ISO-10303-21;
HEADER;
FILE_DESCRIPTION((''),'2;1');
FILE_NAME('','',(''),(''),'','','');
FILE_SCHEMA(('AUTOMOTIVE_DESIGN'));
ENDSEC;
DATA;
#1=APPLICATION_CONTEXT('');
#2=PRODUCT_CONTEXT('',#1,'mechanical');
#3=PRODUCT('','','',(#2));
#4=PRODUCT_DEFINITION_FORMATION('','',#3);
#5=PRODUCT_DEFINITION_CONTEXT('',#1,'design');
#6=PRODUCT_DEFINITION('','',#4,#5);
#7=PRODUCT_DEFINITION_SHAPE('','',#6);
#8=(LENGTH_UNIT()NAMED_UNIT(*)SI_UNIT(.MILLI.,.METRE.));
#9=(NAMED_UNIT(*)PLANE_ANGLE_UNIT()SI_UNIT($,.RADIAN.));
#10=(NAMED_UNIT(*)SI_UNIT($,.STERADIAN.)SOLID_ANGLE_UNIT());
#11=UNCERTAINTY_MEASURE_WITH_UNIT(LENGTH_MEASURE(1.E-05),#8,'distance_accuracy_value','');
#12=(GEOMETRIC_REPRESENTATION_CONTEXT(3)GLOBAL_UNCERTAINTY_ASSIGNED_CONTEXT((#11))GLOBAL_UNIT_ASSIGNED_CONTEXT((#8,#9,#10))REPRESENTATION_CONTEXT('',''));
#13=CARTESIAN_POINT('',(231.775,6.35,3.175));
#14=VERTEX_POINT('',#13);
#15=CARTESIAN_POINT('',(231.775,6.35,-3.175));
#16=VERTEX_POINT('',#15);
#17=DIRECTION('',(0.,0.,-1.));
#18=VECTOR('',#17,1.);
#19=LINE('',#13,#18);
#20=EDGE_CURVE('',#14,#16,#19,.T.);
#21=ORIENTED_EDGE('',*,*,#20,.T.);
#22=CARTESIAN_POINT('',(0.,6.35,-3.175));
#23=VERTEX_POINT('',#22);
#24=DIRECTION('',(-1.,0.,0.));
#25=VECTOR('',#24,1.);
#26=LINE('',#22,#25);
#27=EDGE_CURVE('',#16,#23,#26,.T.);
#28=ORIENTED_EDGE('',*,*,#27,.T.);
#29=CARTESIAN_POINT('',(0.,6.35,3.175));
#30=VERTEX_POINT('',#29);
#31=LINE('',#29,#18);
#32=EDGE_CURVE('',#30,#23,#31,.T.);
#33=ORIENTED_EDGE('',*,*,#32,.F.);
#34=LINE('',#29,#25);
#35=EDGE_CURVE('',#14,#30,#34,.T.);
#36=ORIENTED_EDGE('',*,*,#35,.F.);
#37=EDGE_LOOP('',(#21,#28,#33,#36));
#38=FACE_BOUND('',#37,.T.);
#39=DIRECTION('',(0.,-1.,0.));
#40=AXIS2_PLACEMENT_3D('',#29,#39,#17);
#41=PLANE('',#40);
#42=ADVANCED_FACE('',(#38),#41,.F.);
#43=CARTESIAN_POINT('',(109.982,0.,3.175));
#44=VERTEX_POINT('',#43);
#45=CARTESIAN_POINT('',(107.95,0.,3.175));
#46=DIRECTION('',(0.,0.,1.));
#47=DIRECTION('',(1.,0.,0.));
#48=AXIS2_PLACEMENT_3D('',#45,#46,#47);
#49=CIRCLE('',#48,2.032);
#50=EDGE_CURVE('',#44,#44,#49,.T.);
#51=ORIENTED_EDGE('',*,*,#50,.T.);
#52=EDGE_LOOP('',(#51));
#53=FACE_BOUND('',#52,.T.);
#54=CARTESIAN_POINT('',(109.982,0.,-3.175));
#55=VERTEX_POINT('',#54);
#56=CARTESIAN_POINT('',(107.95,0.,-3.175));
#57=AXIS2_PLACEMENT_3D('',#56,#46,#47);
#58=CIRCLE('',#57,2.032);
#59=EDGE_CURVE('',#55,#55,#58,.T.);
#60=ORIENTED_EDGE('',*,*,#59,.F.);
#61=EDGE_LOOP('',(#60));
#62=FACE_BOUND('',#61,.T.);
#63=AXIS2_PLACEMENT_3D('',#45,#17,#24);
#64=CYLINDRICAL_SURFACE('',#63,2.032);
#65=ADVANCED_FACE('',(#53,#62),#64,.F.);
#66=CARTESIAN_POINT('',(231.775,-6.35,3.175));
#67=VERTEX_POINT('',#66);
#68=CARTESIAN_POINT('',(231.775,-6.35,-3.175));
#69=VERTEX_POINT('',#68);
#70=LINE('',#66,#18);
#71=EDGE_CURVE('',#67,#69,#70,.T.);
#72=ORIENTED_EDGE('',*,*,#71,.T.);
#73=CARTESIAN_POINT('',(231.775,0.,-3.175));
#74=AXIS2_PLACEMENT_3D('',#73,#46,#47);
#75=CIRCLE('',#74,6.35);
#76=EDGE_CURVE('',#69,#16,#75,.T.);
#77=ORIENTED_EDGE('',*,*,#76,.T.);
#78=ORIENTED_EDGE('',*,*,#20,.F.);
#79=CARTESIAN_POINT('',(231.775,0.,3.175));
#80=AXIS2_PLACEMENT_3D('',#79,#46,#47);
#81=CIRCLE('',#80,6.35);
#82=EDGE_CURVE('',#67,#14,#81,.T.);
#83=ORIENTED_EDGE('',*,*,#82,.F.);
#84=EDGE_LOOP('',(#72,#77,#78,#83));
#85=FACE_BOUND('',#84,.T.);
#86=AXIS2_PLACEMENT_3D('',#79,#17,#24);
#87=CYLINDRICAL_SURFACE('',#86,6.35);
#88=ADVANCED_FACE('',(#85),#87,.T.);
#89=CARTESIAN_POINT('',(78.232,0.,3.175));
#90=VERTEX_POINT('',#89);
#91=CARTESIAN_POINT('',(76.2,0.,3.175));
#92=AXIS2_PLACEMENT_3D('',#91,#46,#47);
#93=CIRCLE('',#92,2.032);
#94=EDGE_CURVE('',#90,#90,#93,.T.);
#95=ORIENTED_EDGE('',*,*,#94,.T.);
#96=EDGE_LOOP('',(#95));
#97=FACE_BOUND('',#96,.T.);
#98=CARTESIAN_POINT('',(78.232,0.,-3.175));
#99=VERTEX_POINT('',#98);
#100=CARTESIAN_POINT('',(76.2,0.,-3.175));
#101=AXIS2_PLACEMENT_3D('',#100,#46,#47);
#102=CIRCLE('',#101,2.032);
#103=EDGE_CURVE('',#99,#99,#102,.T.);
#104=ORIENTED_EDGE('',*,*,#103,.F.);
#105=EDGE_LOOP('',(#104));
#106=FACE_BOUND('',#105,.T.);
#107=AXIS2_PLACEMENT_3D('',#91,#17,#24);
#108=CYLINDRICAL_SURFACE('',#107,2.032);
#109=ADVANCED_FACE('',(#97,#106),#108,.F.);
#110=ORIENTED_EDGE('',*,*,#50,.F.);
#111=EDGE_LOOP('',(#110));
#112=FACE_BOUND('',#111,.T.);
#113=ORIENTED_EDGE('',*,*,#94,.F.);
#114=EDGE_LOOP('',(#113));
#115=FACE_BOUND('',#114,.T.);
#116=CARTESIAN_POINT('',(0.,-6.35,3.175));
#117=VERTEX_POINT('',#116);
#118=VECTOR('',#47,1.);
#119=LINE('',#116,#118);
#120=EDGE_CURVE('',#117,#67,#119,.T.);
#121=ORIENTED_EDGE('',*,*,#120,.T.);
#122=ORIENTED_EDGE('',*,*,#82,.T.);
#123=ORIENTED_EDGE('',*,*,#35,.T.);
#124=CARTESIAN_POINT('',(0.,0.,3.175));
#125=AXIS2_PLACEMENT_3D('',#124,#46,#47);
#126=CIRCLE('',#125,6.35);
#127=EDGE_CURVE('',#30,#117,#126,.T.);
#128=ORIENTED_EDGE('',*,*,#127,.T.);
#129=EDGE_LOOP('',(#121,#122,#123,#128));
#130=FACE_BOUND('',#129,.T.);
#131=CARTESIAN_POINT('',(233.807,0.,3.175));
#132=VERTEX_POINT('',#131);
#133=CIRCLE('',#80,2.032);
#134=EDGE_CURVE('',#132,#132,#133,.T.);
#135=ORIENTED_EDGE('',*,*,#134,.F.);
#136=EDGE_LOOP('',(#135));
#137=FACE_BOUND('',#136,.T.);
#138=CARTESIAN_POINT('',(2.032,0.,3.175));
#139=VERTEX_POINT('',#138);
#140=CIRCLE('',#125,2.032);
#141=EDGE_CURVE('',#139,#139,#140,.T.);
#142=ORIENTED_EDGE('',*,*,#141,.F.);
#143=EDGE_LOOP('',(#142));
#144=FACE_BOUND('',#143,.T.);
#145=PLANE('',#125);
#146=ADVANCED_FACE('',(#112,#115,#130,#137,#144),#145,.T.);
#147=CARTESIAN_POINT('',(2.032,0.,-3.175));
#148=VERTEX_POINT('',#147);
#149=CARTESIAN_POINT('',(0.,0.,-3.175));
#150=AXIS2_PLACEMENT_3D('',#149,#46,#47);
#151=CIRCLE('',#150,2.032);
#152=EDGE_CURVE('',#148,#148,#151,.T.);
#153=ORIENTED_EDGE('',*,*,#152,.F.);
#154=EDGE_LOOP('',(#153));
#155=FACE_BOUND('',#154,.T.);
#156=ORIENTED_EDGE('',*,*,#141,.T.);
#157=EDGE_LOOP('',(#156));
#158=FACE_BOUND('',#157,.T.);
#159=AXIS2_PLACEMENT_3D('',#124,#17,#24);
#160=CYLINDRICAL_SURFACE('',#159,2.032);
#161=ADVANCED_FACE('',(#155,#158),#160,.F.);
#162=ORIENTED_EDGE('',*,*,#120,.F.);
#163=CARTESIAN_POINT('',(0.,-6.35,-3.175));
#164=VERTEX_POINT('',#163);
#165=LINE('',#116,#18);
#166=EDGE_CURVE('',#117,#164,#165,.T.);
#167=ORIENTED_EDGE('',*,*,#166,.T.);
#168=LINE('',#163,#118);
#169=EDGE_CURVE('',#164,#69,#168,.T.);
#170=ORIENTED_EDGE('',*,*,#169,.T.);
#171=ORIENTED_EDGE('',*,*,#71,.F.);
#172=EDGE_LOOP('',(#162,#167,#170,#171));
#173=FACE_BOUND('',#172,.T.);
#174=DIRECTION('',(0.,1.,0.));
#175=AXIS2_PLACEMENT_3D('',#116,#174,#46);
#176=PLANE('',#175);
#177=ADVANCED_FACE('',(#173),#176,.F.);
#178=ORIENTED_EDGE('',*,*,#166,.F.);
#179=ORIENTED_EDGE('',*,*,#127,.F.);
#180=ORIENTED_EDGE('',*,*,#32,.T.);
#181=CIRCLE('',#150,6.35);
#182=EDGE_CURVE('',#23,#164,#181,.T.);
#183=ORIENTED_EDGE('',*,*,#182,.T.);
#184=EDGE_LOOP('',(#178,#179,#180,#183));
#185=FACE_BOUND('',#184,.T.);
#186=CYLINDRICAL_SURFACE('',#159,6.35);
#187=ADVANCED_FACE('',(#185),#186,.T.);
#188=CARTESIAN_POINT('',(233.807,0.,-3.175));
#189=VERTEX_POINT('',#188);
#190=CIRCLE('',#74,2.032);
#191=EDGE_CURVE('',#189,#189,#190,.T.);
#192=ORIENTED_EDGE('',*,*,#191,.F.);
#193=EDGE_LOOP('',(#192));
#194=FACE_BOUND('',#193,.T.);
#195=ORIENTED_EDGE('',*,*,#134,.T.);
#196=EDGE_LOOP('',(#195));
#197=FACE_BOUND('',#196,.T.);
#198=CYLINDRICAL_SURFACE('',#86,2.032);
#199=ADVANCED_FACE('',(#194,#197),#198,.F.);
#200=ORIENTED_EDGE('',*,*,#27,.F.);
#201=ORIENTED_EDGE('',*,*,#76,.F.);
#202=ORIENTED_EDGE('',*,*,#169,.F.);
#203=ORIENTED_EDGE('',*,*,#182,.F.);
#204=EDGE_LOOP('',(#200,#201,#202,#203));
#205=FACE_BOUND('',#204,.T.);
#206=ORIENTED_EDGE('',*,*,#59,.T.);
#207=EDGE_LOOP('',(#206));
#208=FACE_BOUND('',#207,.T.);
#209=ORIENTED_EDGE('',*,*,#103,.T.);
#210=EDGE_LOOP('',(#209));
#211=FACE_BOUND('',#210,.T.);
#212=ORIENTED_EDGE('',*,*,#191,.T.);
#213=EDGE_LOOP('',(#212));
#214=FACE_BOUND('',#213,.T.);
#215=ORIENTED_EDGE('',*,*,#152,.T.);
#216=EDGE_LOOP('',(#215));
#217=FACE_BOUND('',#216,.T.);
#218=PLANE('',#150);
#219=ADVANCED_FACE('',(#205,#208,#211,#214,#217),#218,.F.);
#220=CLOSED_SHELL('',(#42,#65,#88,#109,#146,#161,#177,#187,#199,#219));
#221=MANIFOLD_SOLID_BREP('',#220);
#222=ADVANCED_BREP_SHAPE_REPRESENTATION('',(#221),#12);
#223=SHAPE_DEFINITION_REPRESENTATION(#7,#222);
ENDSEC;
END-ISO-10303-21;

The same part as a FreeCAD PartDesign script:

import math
import FreeCAD as App
import Part
import Sketcher

V = App.Vector
Q = App.Units.Quantity

doc = App.newDocument("Part")
body = doc.addObject("PartDesign::Body", "Body")

sketch1 = body.newObject("Sketcher::SketchObject", "Sketch")
sketch1.AttachmentSupport = (doc.getObject("XY_Plane"), [""])
sketch1.MapMode = "FlatFace"
sketch1.addGeometry(Part.LineSegment(V(231.8, 6.3, 0), V(0, 6.3, 0)), False)
sketch1.addGeometry(Part.ArcOfCircle(Part.Circle(V(0, 0, 0), V(0, 0, 1), 6.3), math.radians(90), math.radians(270)), False)
sketch1.addGeometry(Part.LineSegment(V(0, -6.3, 0), V(231.8, -6.3, 0)), False)
sketch1.addGeometry(Part.ArcOfCircle(Part.Circle(V(231.8, 0, 0), V(0, 0, 1), 6.3), math.radians(-90), math.radians(90)), False)
sketch1.addGeometry(Part.Circle(V(231.8, 0, 0), V(0, 0, 1), 2), False)
sketch1.addGeometry(Part.Circle(V(108, 0, 0), V(0, 0, 1), 2), False)
sketch1.addGeometry(Part.Circle(V(76.2, 0, 0), V(0, 0, 1), 2), False)
sketch1.addGeometry(Part.Circle(V(0, 0, 0), V(0, 0, 1), 2), False)
sketch1.addConstraint(Sketcher.Constraint("Tangent", 0, 2, 1, 1))
sketch1.addConstraint(Sketcher.Constraint("Tangent", 1, 2, 2, 1))
sketch1.addConstraint(Sketcher.Constraint("Tangent", 2, 2, 3, 1))
sketch1.addConstraint(Sketcher.Constraint("Tangent", 3, 2, 0, 1))
sketch1.addConstraint(Sketcher.Constraint("Horizontal", 0))
sketch1.addConstraint(Sketcher.Constraint("Horizontal", 2))
sketch1.addConstraint(Sketcher.Constraint("Coincident", 1, 3, -1, 1))
sketch1.addConstraint(Sketcher.Constraint("Coincident", 7, 3, -1, 1))
sketch1.addConstraint(Sketcher.Constraint("Coincident", 4, 3, 3, 3))
sketch1.addConstraint(Sketcher.Constraint("Equal", 4, 5))
sketch1.addConstraint(Sketcher.Constraint("Equal", 5, 6))
sketch1.addConstraint(Sketcher.Constraint("Equal", 6, 7))
sketch1.addConstraint(Sketcher.Constraint("PointOnObject", 5, 3, -1))
sketch1.addConstraint(Sketcher.Constraint("PointOnObject", 6, 3, -1))
sketch1.addConstraint(Sketcher.Constraint("Diameter", 4, Q("0.16 in")))
sketch1.addConstraint(Sketcher.Constraint("Radius", 1, Q("0.25 in")))
sketch1.addConstraint(Sketcher.Constraint("DistanceX", -1, 1, 6, 3, Q("3 in")))
sketch1.addConstraint(Sketcher.Constraint("DistanceX", 0, 2, 0, 1, Q("9.125 in")))
sketch1.addConstraint(Sketcher.Constraint("DistanceX", -1, 1, 5, 3, Q("4.25 in")))
pad1 = body.newObject("PartDesign::Pad", "Pad")
pad1.Profile = sketch1
pad1.Length = Q("0.25 in")
pad1.Midplane = True

doc.recompute()
